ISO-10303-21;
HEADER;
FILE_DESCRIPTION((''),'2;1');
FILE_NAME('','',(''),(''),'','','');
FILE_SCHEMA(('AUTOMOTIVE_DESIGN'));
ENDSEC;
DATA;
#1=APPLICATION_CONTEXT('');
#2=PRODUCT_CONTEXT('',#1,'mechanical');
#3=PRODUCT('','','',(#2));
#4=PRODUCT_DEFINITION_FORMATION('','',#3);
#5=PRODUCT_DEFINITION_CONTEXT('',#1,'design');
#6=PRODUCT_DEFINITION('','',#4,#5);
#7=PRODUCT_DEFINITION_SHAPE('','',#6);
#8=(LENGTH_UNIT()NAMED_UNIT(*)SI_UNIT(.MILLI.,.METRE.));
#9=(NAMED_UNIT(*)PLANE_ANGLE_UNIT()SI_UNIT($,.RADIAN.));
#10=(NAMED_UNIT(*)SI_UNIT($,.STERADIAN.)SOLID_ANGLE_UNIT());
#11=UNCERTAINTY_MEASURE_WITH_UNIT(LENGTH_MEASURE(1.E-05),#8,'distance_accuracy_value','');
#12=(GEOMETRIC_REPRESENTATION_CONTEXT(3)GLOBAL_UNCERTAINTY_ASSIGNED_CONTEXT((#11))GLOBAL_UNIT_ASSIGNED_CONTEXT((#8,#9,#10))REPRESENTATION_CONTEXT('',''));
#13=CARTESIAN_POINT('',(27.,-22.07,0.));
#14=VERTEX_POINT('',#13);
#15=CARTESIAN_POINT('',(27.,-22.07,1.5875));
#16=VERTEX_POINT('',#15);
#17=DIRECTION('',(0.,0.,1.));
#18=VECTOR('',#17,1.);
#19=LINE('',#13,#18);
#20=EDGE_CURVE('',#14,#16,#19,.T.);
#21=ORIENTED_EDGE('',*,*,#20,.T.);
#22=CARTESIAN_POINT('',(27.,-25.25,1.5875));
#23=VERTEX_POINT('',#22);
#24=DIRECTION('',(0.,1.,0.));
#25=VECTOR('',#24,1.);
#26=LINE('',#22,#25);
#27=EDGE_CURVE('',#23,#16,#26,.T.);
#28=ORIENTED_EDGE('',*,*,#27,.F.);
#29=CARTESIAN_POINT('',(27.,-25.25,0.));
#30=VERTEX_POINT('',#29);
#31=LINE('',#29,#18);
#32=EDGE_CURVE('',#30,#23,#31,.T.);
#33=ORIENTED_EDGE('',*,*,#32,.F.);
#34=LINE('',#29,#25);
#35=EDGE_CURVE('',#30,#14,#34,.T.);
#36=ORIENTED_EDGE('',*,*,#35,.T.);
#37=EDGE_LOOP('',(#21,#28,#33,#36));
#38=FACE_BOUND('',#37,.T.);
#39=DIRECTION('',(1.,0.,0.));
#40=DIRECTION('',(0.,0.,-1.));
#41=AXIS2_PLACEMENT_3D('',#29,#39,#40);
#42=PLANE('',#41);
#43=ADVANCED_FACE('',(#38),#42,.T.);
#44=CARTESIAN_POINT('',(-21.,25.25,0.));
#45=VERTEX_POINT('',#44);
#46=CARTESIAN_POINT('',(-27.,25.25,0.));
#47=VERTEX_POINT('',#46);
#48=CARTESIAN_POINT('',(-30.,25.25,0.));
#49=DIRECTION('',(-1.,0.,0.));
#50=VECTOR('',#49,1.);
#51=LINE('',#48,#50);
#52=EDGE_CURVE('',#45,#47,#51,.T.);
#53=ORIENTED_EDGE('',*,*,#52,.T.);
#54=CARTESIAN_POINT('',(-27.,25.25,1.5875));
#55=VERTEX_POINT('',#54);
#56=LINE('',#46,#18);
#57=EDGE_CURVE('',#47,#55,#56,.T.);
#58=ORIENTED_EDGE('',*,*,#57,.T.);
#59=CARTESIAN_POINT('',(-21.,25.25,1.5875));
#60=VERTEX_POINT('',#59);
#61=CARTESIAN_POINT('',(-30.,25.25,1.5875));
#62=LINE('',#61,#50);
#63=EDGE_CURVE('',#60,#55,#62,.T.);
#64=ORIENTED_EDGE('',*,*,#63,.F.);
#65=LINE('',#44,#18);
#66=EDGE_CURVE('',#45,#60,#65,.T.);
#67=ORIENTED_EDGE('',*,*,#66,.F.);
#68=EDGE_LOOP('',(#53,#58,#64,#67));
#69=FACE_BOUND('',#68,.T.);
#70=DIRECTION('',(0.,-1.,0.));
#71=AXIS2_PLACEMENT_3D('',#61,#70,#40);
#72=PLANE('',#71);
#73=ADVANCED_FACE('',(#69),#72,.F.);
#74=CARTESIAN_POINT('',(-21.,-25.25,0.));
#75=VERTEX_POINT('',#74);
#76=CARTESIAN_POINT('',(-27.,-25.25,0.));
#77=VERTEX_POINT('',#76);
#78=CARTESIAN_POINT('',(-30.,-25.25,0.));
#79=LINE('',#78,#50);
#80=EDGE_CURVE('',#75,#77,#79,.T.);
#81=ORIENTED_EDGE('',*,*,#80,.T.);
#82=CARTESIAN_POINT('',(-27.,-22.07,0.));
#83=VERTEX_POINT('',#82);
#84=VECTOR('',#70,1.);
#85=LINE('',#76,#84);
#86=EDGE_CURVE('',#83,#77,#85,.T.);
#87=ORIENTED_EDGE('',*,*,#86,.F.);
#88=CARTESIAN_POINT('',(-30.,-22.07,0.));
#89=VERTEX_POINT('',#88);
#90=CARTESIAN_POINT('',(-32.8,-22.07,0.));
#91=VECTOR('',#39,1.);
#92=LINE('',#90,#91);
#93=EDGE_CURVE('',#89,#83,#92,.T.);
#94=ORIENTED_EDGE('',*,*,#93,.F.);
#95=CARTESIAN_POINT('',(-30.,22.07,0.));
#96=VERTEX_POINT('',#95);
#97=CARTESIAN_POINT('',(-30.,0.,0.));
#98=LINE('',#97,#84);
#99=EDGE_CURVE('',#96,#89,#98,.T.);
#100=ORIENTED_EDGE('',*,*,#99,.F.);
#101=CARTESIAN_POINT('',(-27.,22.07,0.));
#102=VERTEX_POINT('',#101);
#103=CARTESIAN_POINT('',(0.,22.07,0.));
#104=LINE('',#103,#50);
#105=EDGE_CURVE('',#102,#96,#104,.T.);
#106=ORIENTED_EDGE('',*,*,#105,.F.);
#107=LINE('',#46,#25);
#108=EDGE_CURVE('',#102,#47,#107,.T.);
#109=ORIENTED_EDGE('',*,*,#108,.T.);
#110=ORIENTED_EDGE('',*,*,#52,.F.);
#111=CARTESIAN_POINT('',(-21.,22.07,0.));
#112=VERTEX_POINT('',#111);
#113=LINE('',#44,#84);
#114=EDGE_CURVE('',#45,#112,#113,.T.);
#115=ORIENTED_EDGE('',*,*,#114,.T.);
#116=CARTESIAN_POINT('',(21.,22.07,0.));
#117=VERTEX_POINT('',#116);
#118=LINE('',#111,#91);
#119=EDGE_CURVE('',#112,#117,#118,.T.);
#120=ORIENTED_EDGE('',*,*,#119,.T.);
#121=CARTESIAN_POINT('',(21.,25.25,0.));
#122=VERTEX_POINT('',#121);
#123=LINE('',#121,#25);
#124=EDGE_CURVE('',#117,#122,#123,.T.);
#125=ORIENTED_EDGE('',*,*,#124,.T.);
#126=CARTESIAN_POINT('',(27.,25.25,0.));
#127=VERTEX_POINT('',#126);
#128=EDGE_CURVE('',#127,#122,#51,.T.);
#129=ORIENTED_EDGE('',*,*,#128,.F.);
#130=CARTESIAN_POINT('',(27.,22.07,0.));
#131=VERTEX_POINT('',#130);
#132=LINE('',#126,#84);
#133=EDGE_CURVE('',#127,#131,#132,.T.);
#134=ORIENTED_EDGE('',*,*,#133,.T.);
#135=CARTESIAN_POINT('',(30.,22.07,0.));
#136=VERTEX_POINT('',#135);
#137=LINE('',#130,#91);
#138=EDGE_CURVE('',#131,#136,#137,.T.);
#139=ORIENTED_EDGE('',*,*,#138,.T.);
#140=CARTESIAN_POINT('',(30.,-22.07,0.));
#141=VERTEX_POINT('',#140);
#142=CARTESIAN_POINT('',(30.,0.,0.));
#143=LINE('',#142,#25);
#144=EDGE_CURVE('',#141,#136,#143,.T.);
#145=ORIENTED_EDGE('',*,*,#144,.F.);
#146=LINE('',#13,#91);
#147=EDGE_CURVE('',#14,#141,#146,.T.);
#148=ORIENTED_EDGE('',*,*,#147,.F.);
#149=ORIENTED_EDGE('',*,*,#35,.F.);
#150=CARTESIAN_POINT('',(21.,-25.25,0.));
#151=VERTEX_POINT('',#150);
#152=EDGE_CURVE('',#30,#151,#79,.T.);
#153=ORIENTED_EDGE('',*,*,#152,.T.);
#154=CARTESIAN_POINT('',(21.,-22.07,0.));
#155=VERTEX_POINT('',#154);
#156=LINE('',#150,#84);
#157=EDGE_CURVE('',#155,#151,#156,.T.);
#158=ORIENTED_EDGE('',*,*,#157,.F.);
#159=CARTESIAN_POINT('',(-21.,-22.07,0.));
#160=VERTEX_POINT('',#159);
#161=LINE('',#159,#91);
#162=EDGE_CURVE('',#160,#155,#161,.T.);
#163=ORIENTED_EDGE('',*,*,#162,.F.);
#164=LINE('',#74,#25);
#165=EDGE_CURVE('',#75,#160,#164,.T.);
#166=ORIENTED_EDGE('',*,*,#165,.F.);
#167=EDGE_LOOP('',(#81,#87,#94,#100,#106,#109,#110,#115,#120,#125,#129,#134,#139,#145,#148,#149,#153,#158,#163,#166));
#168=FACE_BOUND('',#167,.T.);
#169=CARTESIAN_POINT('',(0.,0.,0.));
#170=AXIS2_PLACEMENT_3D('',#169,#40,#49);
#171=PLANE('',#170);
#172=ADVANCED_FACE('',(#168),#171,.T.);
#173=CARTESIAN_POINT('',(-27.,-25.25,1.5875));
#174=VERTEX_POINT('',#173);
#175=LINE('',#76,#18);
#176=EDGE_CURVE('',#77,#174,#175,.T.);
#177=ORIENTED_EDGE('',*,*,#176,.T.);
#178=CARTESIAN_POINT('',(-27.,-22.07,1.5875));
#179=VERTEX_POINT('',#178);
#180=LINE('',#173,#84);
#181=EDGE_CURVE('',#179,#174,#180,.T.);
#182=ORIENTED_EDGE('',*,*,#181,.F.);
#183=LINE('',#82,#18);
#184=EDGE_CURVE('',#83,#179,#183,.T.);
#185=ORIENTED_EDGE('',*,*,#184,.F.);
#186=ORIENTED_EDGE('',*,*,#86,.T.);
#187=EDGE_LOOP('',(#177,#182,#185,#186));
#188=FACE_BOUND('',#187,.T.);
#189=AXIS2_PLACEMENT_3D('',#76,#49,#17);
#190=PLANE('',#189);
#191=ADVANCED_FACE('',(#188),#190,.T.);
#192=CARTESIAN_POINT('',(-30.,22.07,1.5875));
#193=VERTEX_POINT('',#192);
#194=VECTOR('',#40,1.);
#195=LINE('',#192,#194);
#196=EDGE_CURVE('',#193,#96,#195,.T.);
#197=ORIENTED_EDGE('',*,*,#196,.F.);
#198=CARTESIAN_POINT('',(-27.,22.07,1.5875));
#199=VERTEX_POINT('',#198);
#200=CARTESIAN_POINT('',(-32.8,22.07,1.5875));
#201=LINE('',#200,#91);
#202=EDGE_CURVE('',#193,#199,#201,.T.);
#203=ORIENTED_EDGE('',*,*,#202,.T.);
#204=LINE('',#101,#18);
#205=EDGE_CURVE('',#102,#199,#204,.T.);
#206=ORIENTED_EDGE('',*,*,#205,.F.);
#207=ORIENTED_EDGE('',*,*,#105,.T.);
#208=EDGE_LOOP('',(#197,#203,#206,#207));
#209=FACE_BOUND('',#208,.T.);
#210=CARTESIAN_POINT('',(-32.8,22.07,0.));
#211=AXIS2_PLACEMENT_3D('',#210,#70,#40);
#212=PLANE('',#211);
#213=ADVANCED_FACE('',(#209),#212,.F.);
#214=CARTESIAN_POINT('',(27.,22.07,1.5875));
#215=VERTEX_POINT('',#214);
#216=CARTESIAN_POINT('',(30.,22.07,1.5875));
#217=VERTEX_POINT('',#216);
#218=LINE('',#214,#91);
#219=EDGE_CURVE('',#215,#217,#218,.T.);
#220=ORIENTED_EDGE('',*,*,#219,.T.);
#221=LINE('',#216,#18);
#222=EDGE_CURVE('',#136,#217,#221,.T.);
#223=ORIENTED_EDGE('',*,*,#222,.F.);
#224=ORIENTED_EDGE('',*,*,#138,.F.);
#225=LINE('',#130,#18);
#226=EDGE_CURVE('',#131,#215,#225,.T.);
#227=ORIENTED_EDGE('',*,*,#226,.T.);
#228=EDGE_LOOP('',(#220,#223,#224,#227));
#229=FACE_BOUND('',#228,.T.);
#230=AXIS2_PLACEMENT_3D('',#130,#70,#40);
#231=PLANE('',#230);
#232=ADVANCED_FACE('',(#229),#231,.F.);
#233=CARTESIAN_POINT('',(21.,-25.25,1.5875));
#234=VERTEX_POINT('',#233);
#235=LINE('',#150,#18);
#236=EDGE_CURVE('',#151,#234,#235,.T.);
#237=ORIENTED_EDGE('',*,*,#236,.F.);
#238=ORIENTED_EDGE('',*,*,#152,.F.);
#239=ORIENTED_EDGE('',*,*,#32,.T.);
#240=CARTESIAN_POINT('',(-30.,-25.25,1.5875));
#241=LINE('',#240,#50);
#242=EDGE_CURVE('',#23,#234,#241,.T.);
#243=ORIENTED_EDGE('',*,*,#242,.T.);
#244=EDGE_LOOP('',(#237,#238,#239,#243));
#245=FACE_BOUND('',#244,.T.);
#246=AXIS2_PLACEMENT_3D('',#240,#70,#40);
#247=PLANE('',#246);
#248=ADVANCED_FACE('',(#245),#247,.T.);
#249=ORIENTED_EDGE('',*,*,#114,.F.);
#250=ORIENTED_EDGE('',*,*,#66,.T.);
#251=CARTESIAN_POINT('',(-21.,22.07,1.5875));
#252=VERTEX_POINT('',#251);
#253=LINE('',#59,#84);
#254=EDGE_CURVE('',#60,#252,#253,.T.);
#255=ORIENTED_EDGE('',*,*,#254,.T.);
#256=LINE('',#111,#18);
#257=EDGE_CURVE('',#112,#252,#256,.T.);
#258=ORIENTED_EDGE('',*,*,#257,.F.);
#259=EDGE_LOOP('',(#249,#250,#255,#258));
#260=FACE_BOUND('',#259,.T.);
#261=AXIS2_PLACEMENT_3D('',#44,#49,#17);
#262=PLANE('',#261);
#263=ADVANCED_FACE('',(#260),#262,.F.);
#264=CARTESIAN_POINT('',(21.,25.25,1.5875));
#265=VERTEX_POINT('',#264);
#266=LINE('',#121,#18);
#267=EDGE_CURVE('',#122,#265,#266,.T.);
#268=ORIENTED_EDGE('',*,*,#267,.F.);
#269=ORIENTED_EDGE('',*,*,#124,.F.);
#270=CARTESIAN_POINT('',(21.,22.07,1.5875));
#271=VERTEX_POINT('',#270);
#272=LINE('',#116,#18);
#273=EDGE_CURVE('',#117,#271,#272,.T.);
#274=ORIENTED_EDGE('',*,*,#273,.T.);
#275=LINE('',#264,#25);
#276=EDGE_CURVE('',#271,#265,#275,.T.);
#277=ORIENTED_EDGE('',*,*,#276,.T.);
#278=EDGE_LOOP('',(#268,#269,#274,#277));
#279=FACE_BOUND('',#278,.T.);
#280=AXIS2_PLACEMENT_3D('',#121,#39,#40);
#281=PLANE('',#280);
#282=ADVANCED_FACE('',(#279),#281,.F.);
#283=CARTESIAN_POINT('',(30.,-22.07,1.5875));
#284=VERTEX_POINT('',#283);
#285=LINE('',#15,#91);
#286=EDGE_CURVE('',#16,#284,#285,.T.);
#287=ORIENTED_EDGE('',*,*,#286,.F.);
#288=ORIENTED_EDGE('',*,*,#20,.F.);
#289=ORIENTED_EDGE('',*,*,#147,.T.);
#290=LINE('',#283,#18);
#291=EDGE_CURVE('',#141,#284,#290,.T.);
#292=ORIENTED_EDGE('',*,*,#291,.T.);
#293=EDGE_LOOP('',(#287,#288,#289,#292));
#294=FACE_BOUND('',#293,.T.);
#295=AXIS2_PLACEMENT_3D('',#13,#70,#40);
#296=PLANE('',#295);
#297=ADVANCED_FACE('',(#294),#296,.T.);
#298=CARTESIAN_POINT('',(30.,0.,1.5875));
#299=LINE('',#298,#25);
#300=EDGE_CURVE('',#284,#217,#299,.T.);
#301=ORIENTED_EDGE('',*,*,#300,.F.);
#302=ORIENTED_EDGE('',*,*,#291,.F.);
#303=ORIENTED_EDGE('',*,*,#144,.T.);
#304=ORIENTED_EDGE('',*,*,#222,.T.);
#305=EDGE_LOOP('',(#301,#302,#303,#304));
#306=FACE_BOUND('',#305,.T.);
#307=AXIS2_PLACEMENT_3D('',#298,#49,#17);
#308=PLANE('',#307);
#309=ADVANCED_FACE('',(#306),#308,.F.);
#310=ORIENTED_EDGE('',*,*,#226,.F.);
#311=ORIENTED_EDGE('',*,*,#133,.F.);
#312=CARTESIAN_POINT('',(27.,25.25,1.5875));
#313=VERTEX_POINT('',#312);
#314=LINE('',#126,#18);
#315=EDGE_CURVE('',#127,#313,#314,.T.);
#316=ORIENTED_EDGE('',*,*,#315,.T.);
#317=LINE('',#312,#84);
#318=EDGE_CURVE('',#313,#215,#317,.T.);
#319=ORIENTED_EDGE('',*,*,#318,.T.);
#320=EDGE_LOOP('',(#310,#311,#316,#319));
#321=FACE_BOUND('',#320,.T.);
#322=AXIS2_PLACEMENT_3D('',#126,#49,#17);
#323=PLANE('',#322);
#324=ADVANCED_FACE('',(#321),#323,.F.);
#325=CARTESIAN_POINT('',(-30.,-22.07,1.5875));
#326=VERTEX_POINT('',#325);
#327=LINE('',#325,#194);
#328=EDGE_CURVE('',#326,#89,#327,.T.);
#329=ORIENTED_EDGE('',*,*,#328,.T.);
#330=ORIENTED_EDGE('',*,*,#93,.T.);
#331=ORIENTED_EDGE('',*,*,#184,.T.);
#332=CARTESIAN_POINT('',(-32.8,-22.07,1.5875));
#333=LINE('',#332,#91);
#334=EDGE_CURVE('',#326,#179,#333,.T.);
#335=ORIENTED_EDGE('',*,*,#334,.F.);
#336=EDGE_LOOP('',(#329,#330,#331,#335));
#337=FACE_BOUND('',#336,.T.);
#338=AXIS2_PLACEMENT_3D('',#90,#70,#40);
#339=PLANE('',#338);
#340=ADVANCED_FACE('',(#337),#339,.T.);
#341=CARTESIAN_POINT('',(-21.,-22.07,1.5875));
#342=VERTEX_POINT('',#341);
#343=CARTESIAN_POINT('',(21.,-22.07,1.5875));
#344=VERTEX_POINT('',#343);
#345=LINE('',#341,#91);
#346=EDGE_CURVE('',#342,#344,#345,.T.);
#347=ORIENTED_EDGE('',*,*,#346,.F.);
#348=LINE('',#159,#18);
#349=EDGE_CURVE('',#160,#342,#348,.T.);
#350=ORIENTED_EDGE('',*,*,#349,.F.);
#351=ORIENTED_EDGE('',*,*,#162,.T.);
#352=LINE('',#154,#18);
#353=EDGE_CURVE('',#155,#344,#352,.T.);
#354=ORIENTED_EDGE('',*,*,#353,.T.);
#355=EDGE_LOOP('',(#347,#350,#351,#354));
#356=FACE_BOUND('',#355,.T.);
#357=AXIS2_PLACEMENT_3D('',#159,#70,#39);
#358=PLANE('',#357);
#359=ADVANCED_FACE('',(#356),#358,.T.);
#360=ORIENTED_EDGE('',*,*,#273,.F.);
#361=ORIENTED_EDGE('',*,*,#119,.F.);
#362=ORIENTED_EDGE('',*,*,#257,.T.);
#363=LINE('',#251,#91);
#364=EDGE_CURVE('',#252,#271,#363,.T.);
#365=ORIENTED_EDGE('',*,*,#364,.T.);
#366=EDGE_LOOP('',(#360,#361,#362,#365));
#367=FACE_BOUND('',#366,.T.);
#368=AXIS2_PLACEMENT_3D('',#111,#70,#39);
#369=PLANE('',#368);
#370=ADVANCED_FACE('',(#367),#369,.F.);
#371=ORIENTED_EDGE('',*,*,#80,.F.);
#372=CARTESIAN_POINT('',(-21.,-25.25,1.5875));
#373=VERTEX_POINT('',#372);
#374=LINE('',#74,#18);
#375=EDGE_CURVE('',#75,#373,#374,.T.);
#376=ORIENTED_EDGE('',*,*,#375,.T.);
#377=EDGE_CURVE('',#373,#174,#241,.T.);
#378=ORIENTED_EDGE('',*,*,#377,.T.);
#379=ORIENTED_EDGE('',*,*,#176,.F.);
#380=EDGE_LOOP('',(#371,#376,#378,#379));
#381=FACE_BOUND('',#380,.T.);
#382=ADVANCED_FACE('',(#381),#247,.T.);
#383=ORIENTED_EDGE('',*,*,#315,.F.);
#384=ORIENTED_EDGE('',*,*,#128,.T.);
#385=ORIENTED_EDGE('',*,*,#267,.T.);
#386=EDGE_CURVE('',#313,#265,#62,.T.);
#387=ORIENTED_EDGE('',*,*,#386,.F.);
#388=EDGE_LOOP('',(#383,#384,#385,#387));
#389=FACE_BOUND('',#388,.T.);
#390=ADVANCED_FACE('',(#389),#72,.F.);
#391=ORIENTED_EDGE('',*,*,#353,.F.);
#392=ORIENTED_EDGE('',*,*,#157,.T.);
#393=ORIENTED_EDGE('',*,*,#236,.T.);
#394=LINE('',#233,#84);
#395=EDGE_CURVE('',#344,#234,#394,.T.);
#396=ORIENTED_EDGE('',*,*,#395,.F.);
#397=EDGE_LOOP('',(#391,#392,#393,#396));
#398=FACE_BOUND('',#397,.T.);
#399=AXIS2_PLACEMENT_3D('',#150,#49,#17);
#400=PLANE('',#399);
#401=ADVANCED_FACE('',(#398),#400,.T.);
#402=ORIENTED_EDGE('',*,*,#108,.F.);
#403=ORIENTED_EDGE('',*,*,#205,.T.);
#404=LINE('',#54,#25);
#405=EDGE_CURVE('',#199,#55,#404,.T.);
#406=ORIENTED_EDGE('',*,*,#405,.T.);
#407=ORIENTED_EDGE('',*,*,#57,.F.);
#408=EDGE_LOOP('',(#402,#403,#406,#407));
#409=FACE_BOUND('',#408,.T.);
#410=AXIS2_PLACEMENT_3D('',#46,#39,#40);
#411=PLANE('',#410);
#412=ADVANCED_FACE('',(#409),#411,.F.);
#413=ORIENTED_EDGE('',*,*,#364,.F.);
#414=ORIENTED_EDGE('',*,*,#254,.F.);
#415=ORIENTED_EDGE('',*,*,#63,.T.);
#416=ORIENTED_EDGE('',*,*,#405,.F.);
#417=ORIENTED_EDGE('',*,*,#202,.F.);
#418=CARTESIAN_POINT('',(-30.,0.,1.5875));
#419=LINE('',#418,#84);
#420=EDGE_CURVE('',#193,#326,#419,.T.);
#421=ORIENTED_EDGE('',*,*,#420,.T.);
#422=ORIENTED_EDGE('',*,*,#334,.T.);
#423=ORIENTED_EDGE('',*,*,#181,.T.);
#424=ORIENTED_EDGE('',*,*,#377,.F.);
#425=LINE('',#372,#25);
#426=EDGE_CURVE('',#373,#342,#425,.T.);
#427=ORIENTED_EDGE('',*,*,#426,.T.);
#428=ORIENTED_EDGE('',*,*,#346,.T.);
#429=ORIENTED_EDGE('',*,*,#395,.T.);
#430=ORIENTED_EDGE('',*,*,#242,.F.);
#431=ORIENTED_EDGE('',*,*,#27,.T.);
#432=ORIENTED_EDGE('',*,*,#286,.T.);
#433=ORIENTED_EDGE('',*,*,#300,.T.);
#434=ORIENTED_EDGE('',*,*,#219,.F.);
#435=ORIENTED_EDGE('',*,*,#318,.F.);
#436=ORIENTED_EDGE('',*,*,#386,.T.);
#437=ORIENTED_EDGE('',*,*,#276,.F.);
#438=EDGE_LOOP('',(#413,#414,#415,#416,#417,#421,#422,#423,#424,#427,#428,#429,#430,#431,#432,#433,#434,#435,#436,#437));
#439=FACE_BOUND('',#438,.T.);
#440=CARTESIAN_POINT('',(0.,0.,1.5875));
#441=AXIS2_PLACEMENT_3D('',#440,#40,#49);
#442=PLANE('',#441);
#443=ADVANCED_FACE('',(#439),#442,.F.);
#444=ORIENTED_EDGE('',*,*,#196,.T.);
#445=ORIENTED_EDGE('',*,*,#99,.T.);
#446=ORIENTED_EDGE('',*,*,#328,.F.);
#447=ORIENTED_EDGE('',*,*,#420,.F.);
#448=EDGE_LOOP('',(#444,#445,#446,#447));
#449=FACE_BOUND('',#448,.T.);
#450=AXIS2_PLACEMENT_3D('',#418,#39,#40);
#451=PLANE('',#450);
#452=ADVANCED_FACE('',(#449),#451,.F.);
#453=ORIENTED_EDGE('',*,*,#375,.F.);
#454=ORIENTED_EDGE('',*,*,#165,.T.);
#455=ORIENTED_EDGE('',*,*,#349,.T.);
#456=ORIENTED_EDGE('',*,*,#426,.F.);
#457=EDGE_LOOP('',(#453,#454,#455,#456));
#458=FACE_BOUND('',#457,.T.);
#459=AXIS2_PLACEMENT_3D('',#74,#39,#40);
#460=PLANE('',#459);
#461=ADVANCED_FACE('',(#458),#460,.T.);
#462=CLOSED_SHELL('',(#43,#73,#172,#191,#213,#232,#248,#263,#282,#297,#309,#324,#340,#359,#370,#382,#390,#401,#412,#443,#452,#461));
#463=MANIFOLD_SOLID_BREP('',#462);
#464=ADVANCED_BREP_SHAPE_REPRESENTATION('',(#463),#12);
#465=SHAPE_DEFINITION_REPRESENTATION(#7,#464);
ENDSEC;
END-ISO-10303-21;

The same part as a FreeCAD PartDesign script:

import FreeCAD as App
import Part
import Sketcher
Q = App.Units.Quantity


def add_polygon(sketch, points):
    """Adds a closed chain of lines whose ends are joined by coincident constraints."""
    first, n = sketch.GeometryCount, len(points)
    for a, b in zip(points, points[1:] + points[:1]):
        sketch.addGeometry(Part.LineSegment(App.Vector(*a, 0), App.Vector(*b, 0)), False)
    for i in range(n):
        sketch.addConstraint(Sketcher.Constraint("Coincident", first + i, 2, first + (i + 1) % n, 1))

doc = App.newDocument("Part")
body = doc.addObject("PartDesign::Body", "Body")

# Sketch on XY plane
sketch1 = body.newObject("Sketcher::SketchObject", "Sketch")
sketch1.AttachmentSupport = (doc.getObject("XY_Plane"), [""])
sketch1.MapMode = "FlatFace"
add_polygon(sketch1, [(-30, 25), (-30, 0), (30, 0), (30, 25)])  # lines 0-3
sketch1.addConstraint([
    Sketcher.Constraint("Vertical", 0),
    Sketcher.Constraint("Horizontal", 1),
    Sketcher.Constraint("Vertical", 2),
    Sketcher.Constraint("Horizontal", 3),
    Sketcher.Constraint("Symmetric", 0, 2, 1, 2, -1, 1),
    Sketcher.Constraint("DistanceX", 1, 1, 1, 2, Q("60 mm")),
    Sketcher.Constraint("DistanceY", 0, 2, 0, 1, Q("25.25 mm")),
])
pad1 = body.newObject("PartDesign::Pad", "Pad")
pad1.Profile = sketch1
pad1.Length = 1.5875

# Sketch on XY plane
sketch2 = body.newObject("Sketcher::SketchObject", "Sketch001")
sketch2.AttachmentSupport = (doc.getObject("XY_Plane"), [""])
sketch2.MapMode = "FlatFace"
sketch2.AttachmentOffset = App.Placement(App.Vector(0, 0, 1.5875), App.Rotation())
add_polygon(sketch2, [(-21, 25.2), (-21, 22.1), (21, 22.1), (21, 25.2)])  # lines 0-3
add_polygon(sketch2, [(27, 25.2), (27, 22.1), (32.7, 22.1), (32.7, 25.2)])  # lines 4-7
add_polygon(sketch2, [(-32.8, 25.2), (-32.8, 22.1), (-27, 22.1), (-27, 25.2)])  # lines 8-11
sketch2.addConstraint([
    Sketcher.Constraint("Vertical", 0),
    Sketcher.Constraint("Horizontal", 1),
    Sketcher.Constraint("Vertical", 2),
    Sketcher.Constraint("Horizontal", 3),
    Sketcher.Constraint("Vertical", 4),
    Sketcher.Constraint("Horizontal", 5),
    Sketcher.Constraint("Vertical", 6),
    Sketcher.Constraint("Horizontal", 7),
    Sketcher.Constraint("Vertical", 8),
    Sketcher.Constraint("Horizontal", 9),
    Sketcher.Constraint("Vertical", 10),
    Sketcher.Constraint("Horizontal", 11),
    Sketcher.Constraint("Symmetric", 4, 2, 9, 2, -2),
    Sketcher.Constraint("Horizontal", 1, 2, 4, 2),
    Sketcher.Constraint("Horizontal", 3, 2, 6, 2),
    Sketcher.Constraint("Horizontal", 7, 2, 10, 2),
    Sketcher.Constraint("DistanceX", 1, 1, 1, 2, Q("42 mm")),
    Sketcher.Constraint("DistanceX", 5, 1, 5, 2, Q("5.7 mm")),
    Sketcher.Constraint("DistanceX", 9, 1, 9, 2, Q("5.8 mm")),
    Sketcher.Constraint("DistanceX", 0, 2, -1, 1, Q("21 mm")),
    Sketcher.Constraint("DistanceX", -1, 1, 4, 2, Q("27 mm")),
    Sketcher.Constraint("DistanceY", 0, 2, 0, 1, Q("3.18 mm")),
    Sketcher.Constraint("DistanceY", -1, 1, 0, 2, Q("22.07 mm")),
])
pocket1 = body.newObject("PartDesign::Pocket", "Pocket")
pocket1.Profile = sketch2
pocket1.Length = 1.5875
doc.recompute()

mirrored = body.newObject("PartDesign::Mirrored", "Mirrored")
mirrored.Originals = [pad1, pocket1]
mirrored.MirrorPlane = (doc.getObject("XZ_Plane"), [""])
body.Tip = mirrored

doc.recompute()
